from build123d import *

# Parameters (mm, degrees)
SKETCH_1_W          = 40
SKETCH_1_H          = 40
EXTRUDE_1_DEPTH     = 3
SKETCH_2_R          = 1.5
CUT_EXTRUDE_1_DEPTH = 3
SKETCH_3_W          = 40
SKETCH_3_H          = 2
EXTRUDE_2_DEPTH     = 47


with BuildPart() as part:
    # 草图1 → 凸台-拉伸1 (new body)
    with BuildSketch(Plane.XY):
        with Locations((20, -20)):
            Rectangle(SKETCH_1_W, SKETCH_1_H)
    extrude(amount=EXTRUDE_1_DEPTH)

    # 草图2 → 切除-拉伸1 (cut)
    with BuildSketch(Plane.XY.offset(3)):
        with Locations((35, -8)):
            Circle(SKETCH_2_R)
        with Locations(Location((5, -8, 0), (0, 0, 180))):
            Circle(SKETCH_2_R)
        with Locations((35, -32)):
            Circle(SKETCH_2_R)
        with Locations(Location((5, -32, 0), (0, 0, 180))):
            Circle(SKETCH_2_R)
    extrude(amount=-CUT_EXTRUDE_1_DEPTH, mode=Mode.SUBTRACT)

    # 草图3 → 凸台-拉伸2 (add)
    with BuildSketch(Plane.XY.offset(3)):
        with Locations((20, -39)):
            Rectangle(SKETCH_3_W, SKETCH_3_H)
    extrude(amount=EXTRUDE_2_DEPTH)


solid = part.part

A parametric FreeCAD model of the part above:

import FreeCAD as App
import Part
import Sketcher

V = App.Vector
Q = App.Units.Quantity

doc = App.newDocument("Part")
body = doc.addObject("PartDesign::Body", "Body")

# Sketch on XY plane
sketch1 = body.newObject("Sketcher::SketchObject", "Sketch")
sketch1.AttachmentSupport = (doc.getObject("XY_Plane"), [""])
sketch1.MapMode = "FlatFace"
sketch1.addGeometry([
    Part.LineSegment(V(0, 0, 0), V(0, -40, 0)),
    Part.LineSegment(V(0, -40, 0), V(40, -40, 0)),
    Part.LineSegment(V(40, -40, 0), V(40, 0, 0)),
    Part.LineSegment(V(40, 0, 0), V(0, 0, 0)),
], False)
sketch1.addConstraint([
    Sketcher.Constraint("Coincident", 0, 2, 1, 1),
    Sketcher.Constraint("Coincident", 1, 2, 2, 1),
    Sketcher.Constraint("Coincident", 2, 2, 3, 1),
    Sketcher.Constraint("Coincident", 3, 2, 0, 1),
    Sketcher.Constraint("Vertical", 0),
    Sketcher.Constraint("Horizontal", 1),
    Sketcher.Constraint("Vertical", 2),
    Sketcher.Constraint("Horizontal", 3),
    Sketcher.Constraint("Coincident", 3, 2, -1, 1),
    Sketcher.Constraint("Equal", 3, 0),
    Sketcher.Constraint("DistanceX", 1, 1, 1, 2, Q("40 mm")),
])
pad1 = body.newObject("PartDesign::Pad", "Pad")
pad1.Profile = sketch1
pad1.Length = 3

# Sketch on XY plane
sketch2 = body.newObject("Sketcher::SketchObject", "Sketch001")
sketch2.AttachmentSupport = (doc.getObject("XY_Plane"), [""])
sketch2.MapMode = "FlatFace"
sketch2.AttachmentOffset = App.Placement(V(0, 0, 3), App.Rotation())
sketch2.addGeometry([
    Part.Circle(V(35, -8, 0), V(0, 0, 1), 1.5),
    Part.Circle(V(5, -8, 0), V(0, 0, 1), 1.5),
    Part.Circle(V(35, -32, 0), V(0, 0, 1), 1.5),
    Part.Circle(V(5, -32, 0), V(0, 0, 1), 1.5),
], False)
sketch2.addConstraint([
    Sketcher.Constraint("Equal", 0, 1),
    Sketcher.Constraint("Equal", 1, 2),
    Sketcher.Constraint("Equal", 2, 3),
    Sketcher.Constraint("Horizontal", 0, 3, 1, 3),
    Sketcher.Constraint("Horizontal", 2, 3, 3, 3),
    Sketcher.Constraint("Vertical", 0, 3, 2, 3),
    Sketcher.Constraint("Vertical", 1, 3, 3, 3),
    Sketcher.Constraint("Diameter", 0, Q("3 mm")),
    Sketcher.Constraint("DistanceX", -1, 1, 0, 3, Q("35 mm")),
    Sketcher.Constraint("DistanceY", 0, 3, -1, 1, Q("8 mm")),
    Sketcher.Constraint("DistanceX", -1, 1, 1, 3, Q("5 mm")),
    Sketcher.Constraint("DistanceY", 2, 3, -1, 1, Q("32 mm")),
])
pocket1 = body.newObject("PartDesign::Pocket", "Pocket")
pocket1.Profile = sketch2
pocket1.Length = 3

# Sketch on XY plane
sketch3 = body.newObject("Sketcher::SketchObject", "Sketch002")
sketch3.AttachmentSupport = (doc.getObject("XY_Plane"), [""])
sketch3.MapMode = "FlatFace"
sketch3.AttachmentOffset = App.Placement(V(0, 0, 3), App.Rotation())
sketch3.addGeometry([
    Part.LineSegment(V(0, -38, 0), V(0, -40, 0)),
    Part.LineSegment(V(0, -40, 0), V(40, -40, 0)),
    Part.LineSegment(V(40, -40, 0), V(40, -38, 0)),
    Part.LineSegment(V(40, -38, 0), V(0, -38, 0)),
], False)
sketch3.addConstraint([
    Sketcher.Constraint("Coincident", 0, 2, 1, 1),
    Sketcher.Constraint("Coincident", 1, 2, 2, 1),
    Sketcher.Constraint("Coincident", 2, 2, 3, 1),
    Sketcher.Constraint("Coincident", 3, 2, 0, 1),
    Sketcher.Constraint("Vertical", 0),
    Sketcher.Constraint("Horizontal", 1),
    Sketcher.Constraint("Vertical", 2),
    Sketcher.Constraint("Horizontal", 3),
    Sketcher.Constraint("PointOnObject", 0, 2, -2),
    Sketcher.Constraint("DistanceX", 1, 1, 1, 2, Q("40 mm")),
    Sketcher.Constraint("DistanceY", 0, 2, 0, 1, Q("2 mm")),
    Sketcher.Constraint("DistanceY", 0, 2, -1, 1, Q("40 mm")),
])
pad2 = body.newObject("PartDesign::Pad", "Pad001")
pad2.Profile = sketch3
pad2.Length = 47

doc.recompute()
